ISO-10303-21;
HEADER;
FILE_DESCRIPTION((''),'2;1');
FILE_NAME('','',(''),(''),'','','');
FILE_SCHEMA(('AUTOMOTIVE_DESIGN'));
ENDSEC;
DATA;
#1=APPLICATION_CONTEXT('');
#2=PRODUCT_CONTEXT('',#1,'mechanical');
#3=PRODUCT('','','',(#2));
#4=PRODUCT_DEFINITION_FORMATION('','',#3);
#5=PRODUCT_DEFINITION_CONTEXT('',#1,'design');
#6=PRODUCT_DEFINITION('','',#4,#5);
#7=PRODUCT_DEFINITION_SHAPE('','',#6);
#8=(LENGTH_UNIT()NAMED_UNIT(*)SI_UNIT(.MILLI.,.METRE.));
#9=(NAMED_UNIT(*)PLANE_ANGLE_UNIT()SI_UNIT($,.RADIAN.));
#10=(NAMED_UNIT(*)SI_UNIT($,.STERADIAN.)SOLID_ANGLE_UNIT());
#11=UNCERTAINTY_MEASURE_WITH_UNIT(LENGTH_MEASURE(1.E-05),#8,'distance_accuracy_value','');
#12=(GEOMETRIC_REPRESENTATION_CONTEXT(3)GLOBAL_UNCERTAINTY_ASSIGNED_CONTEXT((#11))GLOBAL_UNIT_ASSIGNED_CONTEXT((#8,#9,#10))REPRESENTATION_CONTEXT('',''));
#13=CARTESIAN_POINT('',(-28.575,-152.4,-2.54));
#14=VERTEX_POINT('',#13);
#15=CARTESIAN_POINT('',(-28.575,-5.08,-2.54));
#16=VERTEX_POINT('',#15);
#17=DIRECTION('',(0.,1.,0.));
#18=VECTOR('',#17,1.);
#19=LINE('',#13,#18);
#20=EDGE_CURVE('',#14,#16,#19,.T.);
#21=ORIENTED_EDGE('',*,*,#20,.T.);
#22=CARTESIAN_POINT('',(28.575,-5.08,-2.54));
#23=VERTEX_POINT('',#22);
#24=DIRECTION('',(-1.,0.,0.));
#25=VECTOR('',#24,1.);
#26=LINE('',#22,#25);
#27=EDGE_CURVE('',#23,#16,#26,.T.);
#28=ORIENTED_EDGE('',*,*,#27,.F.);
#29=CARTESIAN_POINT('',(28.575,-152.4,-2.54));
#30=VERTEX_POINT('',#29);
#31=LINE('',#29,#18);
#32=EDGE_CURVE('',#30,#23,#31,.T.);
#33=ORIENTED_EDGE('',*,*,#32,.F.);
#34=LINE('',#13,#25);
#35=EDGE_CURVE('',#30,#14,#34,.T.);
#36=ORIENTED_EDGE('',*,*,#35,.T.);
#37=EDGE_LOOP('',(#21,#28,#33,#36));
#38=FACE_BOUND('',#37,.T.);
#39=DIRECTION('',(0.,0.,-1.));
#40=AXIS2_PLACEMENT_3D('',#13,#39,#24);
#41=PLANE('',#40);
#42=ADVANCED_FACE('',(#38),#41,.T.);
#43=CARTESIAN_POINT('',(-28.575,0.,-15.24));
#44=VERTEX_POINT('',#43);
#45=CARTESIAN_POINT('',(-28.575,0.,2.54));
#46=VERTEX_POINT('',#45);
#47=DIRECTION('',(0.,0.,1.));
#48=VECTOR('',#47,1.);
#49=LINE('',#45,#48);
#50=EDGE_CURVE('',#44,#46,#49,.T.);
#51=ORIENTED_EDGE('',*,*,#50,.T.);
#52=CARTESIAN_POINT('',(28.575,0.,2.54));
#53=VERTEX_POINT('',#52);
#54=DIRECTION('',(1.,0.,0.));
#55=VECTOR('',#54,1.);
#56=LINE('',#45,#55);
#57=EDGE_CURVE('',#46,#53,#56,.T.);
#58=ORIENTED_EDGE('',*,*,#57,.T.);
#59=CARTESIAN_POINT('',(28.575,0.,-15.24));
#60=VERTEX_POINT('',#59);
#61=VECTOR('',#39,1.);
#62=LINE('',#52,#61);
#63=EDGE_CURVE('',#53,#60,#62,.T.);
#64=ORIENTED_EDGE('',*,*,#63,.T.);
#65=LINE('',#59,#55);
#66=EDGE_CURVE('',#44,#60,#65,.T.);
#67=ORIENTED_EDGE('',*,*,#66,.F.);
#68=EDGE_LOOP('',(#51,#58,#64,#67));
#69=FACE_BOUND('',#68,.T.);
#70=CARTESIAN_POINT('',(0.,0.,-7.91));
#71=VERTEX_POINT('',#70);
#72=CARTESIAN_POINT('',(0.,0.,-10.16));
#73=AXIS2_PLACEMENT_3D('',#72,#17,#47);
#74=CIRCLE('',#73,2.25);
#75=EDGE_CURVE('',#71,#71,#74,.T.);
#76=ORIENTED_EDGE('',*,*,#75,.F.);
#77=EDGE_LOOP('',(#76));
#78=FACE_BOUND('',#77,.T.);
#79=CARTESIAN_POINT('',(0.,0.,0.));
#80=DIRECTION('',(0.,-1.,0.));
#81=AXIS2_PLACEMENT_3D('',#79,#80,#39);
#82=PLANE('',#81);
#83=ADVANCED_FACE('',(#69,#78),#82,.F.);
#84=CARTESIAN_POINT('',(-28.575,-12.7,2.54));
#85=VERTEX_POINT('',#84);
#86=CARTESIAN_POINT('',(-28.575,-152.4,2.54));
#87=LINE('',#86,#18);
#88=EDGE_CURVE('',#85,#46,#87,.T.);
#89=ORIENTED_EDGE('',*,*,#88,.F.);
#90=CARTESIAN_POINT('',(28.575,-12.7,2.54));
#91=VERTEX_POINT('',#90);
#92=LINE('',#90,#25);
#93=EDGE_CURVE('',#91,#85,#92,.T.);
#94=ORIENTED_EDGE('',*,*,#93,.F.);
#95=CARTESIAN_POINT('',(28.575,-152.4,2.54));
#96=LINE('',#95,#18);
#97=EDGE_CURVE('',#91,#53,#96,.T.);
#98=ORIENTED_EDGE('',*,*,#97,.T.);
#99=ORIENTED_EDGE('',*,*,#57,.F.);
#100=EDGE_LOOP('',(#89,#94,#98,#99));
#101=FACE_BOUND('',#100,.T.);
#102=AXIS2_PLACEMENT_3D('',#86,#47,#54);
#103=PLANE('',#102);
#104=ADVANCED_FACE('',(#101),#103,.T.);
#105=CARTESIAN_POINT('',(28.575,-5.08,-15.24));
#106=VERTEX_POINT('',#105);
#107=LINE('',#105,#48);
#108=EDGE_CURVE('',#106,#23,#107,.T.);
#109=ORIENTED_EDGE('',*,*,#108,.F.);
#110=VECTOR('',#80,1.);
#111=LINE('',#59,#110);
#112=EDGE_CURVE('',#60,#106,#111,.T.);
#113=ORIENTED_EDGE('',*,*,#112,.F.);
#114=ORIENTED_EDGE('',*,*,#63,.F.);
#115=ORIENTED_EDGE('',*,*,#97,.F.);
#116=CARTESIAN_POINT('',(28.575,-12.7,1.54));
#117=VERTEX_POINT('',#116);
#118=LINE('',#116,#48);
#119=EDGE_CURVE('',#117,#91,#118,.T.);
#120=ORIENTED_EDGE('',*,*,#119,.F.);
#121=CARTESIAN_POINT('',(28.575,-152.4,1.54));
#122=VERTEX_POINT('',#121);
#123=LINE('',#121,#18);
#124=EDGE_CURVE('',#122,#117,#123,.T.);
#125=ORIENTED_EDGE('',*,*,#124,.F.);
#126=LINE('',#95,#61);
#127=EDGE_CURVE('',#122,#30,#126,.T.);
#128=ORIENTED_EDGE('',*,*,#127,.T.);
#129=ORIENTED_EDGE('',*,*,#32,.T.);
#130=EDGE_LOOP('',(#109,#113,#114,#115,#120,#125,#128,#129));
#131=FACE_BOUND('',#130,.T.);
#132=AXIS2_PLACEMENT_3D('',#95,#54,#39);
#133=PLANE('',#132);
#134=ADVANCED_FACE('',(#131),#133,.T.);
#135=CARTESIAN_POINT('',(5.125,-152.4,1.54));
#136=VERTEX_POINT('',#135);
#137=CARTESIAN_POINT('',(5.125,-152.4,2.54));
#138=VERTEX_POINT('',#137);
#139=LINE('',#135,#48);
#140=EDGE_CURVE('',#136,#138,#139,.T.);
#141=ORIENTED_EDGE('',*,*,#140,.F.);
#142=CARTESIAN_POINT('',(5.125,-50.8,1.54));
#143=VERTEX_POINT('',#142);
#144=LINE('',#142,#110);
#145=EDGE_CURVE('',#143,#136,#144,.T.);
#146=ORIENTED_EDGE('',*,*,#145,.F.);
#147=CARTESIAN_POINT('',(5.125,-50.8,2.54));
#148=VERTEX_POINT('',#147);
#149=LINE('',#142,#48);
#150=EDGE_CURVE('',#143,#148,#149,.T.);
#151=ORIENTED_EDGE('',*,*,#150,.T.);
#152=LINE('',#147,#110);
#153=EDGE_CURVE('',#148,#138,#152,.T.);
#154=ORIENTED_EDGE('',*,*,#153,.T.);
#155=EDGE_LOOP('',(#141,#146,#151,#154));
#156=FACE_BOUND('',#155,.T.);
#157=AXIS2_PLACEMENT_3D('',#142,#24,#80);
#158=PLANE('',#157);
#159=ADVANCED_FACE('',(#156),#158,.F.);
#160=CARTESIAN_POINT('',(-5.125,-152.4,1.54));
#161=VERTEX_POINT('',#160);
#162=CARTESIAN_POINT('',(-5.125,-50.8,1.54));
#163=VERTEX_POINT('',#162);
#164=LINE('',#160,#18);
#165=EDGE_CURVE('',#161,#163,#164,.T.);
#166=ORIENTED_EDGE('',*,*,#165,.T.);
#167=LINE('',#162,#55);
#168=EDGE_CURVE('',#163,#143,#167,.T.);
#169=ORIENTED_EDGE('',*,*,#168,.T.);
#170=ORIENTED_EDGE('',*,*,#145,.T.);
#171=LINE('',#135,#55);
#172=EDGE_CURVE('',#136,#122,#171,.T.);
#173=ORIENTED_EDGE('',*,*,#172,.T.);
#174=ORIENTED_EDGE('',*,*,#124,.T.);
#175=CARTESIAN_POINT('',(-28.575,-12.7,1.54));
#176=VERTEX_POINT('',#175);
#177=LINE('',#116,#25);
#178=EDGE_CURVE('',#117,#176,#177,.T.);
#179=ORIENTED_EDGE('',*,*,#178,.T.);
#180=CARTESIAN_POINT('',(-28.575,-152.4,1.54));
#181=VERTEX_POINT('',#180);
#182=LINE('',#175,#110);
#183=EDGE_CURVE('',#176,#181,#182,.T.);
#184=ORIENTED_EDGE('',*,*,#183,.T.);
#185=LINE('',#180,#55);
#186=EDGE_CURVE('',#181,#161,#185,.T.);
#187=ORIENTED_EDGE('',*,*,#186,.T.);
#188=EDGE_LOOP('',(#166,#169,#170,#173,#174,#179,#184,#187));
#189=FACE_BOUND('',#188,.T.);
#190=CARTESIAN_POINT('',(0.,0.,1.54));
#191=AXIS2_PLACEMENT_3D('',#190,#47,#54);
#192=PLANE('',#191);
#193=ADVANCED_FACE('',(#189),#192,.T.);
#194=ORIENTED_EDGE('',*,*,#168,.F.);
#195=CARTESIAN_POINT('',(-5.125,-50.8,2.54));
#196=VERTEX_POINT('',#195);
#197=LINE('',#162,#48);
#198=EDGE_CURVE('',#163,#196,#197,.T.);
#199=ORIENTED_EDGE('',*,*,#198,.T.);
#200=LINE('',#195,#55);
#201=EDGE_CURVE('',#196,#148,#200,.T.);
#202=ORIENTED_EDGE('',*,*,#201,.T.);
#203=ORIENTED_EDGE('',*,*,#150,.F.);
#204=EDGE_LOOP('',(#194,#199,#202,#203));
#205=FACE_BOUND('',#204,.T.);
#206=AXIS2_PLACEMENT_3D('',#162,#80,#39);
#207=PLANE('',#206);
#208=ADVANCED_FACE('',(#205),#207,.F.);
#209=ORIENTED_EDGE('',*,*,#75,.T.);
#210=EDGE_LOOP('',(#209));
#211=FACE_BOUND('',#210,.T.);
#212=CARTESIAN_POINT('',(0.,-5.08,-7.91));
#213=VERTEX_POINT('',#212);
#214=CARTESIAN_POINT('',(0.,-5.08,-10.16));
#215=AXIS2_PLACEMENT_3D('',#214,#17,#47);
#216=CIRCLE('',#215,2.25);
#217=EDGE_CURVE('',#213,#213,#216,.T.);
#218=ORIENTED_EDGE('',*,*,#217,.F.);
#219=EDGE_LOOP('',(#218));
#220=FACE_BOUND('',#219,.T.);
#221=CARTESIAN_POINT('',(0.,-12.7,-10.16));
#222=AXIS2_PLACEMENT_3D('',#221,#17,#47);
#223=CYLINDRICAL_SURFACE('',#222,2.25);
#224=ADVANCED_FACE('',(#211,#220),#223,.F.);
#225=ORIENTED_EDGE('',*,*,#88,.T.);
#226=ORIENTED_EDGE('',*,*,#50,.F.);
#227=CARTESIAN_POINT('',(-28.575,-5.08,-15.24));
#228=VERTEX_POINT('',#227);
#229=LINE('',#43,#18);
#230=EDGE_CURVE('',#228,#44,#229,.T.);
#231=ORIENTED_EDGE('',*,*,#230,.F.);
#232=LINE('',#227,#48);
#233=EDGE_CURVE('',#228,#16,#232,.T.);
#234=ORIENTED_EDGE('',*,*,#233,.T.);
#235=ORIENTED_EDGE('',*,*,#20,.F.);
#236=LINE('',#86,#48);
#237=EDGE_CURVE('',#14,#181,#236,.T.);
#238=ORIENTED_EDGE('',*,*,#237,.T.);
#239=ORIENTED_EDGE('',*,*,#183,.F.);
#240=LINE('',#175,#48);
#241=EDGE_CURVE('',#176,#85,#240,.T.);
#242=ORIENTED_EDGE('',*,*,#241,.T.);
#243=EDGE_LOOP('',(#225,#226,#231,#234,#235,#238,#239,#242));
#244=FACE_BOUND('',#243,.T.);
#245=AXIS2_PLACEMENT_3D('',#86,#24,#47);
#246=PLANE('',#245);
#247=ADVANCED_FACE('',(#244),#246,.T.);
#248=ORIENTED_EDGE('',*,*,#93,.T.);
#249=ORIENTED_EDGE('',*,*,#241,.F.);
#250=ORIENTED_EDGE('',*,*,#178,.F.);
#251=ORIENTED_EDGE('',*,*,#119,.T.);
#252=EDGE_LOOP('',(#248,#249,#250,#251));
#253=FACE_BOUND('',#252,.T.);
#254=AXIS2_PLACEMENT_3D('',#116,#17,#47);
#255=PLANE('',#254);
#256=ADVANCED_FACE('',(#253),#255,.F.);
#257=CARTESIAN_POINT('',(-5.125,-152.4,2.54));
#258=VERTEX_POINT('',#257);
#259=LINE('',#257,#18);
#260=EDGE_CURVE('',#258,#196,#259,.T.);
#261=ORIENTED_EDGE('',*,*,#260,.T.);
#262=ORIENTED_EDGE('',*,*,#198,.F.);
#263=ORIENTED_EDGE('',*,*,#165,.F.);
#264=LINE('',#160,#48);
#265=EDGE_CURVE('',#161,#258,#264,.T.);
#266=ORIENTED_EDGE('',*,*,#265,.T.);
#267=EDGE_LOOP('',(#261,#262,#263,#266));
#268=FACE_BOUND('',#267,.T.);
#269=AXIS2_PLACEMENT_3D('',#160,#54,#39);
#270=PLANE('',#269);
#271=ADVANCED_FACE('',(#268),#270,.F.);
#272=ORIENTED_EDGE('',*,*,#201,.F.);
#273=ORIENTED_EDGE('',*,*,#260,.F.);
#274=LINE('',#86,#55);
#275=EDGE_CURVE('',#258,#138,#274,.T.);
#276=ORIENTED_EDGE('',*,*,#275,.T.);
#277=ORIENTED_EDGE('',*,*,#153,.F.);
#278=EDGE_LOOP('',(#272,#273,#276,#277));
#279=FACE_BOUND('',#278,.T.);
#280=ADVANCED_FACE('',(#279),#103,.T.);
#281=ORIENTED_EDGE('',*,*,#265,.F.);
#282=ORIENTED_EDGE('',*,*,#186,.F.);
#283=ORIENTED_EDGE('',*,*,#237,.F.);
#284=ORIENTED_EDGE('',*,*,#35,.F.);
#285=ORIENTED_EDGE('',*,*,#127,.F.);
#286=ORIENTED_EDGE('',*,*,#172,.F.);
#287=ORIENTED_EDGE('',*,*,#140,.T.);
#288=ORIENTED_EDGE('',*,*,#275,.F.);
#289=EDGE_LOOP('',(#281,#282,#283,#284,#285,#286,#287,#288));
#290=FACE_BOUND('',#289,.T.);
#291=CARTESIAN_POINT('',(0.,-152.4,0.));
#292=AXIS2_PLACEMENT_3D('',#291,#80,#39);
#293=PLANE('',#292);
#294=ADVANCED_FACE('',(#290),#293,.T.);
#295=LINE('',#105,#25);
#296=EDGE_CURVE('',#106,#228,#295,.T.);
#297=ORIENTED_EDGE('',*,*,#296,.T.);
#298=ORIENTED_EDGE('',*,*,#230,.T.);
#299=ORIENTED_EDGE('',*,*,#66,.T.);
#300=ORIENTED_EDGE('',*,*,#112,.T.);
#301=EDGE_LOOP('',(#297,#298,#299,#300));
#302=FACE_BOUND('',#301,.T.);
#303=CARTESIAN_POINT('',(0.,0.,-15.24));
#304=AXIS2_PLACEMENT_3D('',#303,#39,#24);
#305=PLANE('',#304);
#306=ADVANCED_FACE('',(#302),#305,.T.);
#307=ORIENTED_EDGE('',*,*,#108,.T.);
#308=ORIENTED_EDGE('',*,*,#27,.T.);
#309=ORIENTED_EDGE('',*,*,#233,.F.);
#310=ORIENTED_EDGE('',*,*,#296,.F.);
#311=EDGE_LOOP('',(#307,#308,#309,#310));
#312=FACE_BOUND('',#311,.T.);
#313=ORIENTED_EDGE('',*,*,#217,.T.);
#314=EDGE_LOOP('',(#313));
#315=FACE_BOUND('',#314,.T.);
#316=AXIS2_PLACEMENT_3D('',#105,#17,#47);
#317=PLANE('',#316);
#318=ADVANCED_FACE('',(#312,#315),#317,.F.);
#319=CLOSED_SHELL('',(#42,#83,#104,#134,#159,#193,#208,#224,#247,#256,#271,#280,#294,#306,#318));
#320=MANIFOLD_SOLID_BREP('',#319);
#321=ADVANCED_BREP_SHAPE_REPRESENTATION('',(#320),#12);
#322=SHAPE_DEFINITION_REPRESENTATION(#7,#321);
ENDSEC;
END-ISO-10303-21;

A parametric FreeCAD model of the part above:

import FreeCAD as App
import Part
import Sketcher
Q = App.Units.Quantity


def add_polygon(sketch, points):
    """Adds a closed chain of lines whose ends are joined by coincident constraints."""
    first, n = sketch.GeometryCount, len(points)
    for a, b in zip(points, points[1:] + points[:1]):
        sketch.addGeometry(Part.LineSegment(App.Vector(*a, 0), App.Vector(*b, 0)), False)
    for i in range(n):
        sketch.addConstraint(Sketcher.Constraint("Coincident", first + i, 2, first + (i + 1) % n, 1))

doc = App.newDocument("Part")
body = doc.addObject("PartDesign::Body", "Body")

# Sketch on XZ plane
sketch1 = doc.addObject("Sketcher::SketchObject", "Sketch")
body.addObject(sketch1)
sketch1.AttachmentSupport = (doc.XZ_Plane, [""])
sketch1.MapMode = "FlatFace"
add_polygon(sketch1, [(-28.575, -2.54), (-28.575, 2.54), (28.575, 2.54), (28.575, -2.54)])  # lines 0-3
sketch1.addConstraint(Sketcher.Constraint("Vertical", 0))
sketch1.addConstraint(Sketcher.Constraint("Horizontal", 1))
sketch1.addConstraint(Sketcher.Constraint("Vertical", 2))
sketch1.addConstraint(Sketcher.Constraint("Horizontal", 3))
sketch1.addConstraint(Sketcher.Constraint("Symmetric", 0, 2, 2, 2, -1, 1))
sketch1.addConstraint(Sketcher.Constraint("DistanceY", 0, 1, 0, 2, Q("0.2 in")))
sketch1.addConstraint(Sketcher.Constraint("DistanceX", 1, 1, 1, 2, Q("2.25 in")))
pad1 = doc.addObject("PartDesign::Pad", "Pad")
body.addObject(pad1)
pad1.Profile = sketch1
pad1.Length = Q("6 in")

# Sketch on XY plane
sketch2 = doc.addObject("Sketcher::SketchObject", "Sketch001")
body.addObject(sketch2)
sketch2.AttachmentSupport = (doc.XY_Plane, [""])
sketch2.MapMode = "FlatFace"
sketch2.AttachmentOffset = App.Placement(App.Vector(0, 0, 0.1 * 25.4), App.Rotation())
add_polygon(sketch2, [(-5.125, -152.4), (-5.125, -50.8), (5.125, -50.8), (5.125, -152.4), (28.575, -152.4), (28.575, -12.7), (-28.575, -12.7), (-28.575, -152.4)])  # lines 0-7
sketch2.addConstraint(Sketcher.Constraint("Vertical", 0))
sketch2.addConstraint(Sketcher.Constraint("Horizontal", 1))
sketch2.addConstraint(Sketcher.Constraint("Vertical", 2))
sketch2.addConstraint(Sketcher.Constraint("Horizontal", 3))
sketch2.addConstraint(Sketcher.Constraint("Vertical", 4))
sketch2.addConstraint(Sketcher.Constraint("Horizontal", 5))
sketch2.addConstraint(Sketcher.Constraint("Vertical", 6))
sketch2.addConstraint(Sketcher.Constraint("Horizontal", 7))
sketch2.addConstraint(Sketcher.Constraint("Symmetric", 3, 2, 6, 2, -2))
sketch2.addConstraint(Sketcher.Constraint("Equal", 3, 7))
sketch2.addConstraint(Sketcher.Constraint("DistanceY", 0, 1, 0, 2, Q("4 in")))
sketch2.addConstraint(Sketcher.Constraint("DistanceY", 4, 1, 4, 2, Q("5.5 in")))
sketch2.addConstraint(Sketcher.Constraint("DistanceY", 0, 2, -1, 1, Q("2 in")))
sketch2.addConstraint(Sketcher.Constraint("DistanceX", 5, 2, 5, 1, Q("2.25 in")))
sketch2.addConstraint(Sketcher.Constraint("DistanceX", 1, 1, 1, 2, 10.25))
pocket1 = doc.addObject("PartDesign::Pocket", "Pocket")
body.addObject(pocket1)
pocket1.Profile = sketch2
pocket1.Length = 1

# Sketch on XY plane
sketch3 = doc.addObject("Sketcher::SketchObject", "Sketch002")
body.addObject(sketch3)
sketch3.AttachmentSupport = (doc.XY_Plane, [""])
sketch3.MapMode = "FlatFace"
sketch3.AttachmentOffset = App.Placement(App.Vector(0, 0, -0.1 * 25.4), App.Rotation())
add_polygon(sketch3, [(28.575, 0), (28.575, -5.08), (-28.575, -5.08), (-28.575, 0)])  # lines 0-3
sketch3.addConstraint(Sketcher.Constraint("Vertical", 0))
sketch3.addConstraint(Sketcher.Constraint("Horizontal", 1))
sketch3.addConstraint(Sketcher.Constraint("Vertical", 2))
sketch3.addConstraint(Sketcher.Constraint("Horizontal", 3))
sketch3.addConstraint(Sketcher.Constraint("Symmetric", 2, 2, 3, 2, -1, 1))
sketch3.addConstraint(Sketcher.Constraint("DistanceY", 0, 2, 0, 1, Q("0.2 in")))
sketch3.addConstraint(Sketcher.Constraint("DistanceX", 1, 2, 1, 1, Q("2.25 in")))
pad2 = doc.addObject("PartDesign::Pad", "Pad001")
body.addObject(pad2)
pad2.Profile = sketch3
pad2.Length = Q("0.5 in")
pad2.Reversed = True

# Sketch on XZ plane
sketch4 = doc.addObject("Sketcher::SketchObject", "Sketch003")
body.addObject(sketch4)
sketch4.AttachmentSupport = (doc.XZ_Plane, [""])
sketch4.MapMode = "FlatFace"
sketch4.addGeometry(Part.Circle(App.Vector(0, -10.16, 0), App.Vector(0, 0, 1), 2.25), False)
sketch4.addConstraint(Sketcher.Constraint("PointOnObject", 0, 3, -2))
sketch4.addConstraint(Sketcher.Constraint("DistanceY", 0, 3, -1, 1, Q("0.4 in")))
sketch4.addConstraint(Sketcher.Constraint("Diameter", 0, 4.5))
pocket2 = doc.addObject("PartDesign::Pocket", "Pocket001")
body.addObject(pocket2)
pocket2.Profile = sketch4
pocket2.Length = Q("0.5 in")
pocket2.Reversed = True

doc.recompute()
